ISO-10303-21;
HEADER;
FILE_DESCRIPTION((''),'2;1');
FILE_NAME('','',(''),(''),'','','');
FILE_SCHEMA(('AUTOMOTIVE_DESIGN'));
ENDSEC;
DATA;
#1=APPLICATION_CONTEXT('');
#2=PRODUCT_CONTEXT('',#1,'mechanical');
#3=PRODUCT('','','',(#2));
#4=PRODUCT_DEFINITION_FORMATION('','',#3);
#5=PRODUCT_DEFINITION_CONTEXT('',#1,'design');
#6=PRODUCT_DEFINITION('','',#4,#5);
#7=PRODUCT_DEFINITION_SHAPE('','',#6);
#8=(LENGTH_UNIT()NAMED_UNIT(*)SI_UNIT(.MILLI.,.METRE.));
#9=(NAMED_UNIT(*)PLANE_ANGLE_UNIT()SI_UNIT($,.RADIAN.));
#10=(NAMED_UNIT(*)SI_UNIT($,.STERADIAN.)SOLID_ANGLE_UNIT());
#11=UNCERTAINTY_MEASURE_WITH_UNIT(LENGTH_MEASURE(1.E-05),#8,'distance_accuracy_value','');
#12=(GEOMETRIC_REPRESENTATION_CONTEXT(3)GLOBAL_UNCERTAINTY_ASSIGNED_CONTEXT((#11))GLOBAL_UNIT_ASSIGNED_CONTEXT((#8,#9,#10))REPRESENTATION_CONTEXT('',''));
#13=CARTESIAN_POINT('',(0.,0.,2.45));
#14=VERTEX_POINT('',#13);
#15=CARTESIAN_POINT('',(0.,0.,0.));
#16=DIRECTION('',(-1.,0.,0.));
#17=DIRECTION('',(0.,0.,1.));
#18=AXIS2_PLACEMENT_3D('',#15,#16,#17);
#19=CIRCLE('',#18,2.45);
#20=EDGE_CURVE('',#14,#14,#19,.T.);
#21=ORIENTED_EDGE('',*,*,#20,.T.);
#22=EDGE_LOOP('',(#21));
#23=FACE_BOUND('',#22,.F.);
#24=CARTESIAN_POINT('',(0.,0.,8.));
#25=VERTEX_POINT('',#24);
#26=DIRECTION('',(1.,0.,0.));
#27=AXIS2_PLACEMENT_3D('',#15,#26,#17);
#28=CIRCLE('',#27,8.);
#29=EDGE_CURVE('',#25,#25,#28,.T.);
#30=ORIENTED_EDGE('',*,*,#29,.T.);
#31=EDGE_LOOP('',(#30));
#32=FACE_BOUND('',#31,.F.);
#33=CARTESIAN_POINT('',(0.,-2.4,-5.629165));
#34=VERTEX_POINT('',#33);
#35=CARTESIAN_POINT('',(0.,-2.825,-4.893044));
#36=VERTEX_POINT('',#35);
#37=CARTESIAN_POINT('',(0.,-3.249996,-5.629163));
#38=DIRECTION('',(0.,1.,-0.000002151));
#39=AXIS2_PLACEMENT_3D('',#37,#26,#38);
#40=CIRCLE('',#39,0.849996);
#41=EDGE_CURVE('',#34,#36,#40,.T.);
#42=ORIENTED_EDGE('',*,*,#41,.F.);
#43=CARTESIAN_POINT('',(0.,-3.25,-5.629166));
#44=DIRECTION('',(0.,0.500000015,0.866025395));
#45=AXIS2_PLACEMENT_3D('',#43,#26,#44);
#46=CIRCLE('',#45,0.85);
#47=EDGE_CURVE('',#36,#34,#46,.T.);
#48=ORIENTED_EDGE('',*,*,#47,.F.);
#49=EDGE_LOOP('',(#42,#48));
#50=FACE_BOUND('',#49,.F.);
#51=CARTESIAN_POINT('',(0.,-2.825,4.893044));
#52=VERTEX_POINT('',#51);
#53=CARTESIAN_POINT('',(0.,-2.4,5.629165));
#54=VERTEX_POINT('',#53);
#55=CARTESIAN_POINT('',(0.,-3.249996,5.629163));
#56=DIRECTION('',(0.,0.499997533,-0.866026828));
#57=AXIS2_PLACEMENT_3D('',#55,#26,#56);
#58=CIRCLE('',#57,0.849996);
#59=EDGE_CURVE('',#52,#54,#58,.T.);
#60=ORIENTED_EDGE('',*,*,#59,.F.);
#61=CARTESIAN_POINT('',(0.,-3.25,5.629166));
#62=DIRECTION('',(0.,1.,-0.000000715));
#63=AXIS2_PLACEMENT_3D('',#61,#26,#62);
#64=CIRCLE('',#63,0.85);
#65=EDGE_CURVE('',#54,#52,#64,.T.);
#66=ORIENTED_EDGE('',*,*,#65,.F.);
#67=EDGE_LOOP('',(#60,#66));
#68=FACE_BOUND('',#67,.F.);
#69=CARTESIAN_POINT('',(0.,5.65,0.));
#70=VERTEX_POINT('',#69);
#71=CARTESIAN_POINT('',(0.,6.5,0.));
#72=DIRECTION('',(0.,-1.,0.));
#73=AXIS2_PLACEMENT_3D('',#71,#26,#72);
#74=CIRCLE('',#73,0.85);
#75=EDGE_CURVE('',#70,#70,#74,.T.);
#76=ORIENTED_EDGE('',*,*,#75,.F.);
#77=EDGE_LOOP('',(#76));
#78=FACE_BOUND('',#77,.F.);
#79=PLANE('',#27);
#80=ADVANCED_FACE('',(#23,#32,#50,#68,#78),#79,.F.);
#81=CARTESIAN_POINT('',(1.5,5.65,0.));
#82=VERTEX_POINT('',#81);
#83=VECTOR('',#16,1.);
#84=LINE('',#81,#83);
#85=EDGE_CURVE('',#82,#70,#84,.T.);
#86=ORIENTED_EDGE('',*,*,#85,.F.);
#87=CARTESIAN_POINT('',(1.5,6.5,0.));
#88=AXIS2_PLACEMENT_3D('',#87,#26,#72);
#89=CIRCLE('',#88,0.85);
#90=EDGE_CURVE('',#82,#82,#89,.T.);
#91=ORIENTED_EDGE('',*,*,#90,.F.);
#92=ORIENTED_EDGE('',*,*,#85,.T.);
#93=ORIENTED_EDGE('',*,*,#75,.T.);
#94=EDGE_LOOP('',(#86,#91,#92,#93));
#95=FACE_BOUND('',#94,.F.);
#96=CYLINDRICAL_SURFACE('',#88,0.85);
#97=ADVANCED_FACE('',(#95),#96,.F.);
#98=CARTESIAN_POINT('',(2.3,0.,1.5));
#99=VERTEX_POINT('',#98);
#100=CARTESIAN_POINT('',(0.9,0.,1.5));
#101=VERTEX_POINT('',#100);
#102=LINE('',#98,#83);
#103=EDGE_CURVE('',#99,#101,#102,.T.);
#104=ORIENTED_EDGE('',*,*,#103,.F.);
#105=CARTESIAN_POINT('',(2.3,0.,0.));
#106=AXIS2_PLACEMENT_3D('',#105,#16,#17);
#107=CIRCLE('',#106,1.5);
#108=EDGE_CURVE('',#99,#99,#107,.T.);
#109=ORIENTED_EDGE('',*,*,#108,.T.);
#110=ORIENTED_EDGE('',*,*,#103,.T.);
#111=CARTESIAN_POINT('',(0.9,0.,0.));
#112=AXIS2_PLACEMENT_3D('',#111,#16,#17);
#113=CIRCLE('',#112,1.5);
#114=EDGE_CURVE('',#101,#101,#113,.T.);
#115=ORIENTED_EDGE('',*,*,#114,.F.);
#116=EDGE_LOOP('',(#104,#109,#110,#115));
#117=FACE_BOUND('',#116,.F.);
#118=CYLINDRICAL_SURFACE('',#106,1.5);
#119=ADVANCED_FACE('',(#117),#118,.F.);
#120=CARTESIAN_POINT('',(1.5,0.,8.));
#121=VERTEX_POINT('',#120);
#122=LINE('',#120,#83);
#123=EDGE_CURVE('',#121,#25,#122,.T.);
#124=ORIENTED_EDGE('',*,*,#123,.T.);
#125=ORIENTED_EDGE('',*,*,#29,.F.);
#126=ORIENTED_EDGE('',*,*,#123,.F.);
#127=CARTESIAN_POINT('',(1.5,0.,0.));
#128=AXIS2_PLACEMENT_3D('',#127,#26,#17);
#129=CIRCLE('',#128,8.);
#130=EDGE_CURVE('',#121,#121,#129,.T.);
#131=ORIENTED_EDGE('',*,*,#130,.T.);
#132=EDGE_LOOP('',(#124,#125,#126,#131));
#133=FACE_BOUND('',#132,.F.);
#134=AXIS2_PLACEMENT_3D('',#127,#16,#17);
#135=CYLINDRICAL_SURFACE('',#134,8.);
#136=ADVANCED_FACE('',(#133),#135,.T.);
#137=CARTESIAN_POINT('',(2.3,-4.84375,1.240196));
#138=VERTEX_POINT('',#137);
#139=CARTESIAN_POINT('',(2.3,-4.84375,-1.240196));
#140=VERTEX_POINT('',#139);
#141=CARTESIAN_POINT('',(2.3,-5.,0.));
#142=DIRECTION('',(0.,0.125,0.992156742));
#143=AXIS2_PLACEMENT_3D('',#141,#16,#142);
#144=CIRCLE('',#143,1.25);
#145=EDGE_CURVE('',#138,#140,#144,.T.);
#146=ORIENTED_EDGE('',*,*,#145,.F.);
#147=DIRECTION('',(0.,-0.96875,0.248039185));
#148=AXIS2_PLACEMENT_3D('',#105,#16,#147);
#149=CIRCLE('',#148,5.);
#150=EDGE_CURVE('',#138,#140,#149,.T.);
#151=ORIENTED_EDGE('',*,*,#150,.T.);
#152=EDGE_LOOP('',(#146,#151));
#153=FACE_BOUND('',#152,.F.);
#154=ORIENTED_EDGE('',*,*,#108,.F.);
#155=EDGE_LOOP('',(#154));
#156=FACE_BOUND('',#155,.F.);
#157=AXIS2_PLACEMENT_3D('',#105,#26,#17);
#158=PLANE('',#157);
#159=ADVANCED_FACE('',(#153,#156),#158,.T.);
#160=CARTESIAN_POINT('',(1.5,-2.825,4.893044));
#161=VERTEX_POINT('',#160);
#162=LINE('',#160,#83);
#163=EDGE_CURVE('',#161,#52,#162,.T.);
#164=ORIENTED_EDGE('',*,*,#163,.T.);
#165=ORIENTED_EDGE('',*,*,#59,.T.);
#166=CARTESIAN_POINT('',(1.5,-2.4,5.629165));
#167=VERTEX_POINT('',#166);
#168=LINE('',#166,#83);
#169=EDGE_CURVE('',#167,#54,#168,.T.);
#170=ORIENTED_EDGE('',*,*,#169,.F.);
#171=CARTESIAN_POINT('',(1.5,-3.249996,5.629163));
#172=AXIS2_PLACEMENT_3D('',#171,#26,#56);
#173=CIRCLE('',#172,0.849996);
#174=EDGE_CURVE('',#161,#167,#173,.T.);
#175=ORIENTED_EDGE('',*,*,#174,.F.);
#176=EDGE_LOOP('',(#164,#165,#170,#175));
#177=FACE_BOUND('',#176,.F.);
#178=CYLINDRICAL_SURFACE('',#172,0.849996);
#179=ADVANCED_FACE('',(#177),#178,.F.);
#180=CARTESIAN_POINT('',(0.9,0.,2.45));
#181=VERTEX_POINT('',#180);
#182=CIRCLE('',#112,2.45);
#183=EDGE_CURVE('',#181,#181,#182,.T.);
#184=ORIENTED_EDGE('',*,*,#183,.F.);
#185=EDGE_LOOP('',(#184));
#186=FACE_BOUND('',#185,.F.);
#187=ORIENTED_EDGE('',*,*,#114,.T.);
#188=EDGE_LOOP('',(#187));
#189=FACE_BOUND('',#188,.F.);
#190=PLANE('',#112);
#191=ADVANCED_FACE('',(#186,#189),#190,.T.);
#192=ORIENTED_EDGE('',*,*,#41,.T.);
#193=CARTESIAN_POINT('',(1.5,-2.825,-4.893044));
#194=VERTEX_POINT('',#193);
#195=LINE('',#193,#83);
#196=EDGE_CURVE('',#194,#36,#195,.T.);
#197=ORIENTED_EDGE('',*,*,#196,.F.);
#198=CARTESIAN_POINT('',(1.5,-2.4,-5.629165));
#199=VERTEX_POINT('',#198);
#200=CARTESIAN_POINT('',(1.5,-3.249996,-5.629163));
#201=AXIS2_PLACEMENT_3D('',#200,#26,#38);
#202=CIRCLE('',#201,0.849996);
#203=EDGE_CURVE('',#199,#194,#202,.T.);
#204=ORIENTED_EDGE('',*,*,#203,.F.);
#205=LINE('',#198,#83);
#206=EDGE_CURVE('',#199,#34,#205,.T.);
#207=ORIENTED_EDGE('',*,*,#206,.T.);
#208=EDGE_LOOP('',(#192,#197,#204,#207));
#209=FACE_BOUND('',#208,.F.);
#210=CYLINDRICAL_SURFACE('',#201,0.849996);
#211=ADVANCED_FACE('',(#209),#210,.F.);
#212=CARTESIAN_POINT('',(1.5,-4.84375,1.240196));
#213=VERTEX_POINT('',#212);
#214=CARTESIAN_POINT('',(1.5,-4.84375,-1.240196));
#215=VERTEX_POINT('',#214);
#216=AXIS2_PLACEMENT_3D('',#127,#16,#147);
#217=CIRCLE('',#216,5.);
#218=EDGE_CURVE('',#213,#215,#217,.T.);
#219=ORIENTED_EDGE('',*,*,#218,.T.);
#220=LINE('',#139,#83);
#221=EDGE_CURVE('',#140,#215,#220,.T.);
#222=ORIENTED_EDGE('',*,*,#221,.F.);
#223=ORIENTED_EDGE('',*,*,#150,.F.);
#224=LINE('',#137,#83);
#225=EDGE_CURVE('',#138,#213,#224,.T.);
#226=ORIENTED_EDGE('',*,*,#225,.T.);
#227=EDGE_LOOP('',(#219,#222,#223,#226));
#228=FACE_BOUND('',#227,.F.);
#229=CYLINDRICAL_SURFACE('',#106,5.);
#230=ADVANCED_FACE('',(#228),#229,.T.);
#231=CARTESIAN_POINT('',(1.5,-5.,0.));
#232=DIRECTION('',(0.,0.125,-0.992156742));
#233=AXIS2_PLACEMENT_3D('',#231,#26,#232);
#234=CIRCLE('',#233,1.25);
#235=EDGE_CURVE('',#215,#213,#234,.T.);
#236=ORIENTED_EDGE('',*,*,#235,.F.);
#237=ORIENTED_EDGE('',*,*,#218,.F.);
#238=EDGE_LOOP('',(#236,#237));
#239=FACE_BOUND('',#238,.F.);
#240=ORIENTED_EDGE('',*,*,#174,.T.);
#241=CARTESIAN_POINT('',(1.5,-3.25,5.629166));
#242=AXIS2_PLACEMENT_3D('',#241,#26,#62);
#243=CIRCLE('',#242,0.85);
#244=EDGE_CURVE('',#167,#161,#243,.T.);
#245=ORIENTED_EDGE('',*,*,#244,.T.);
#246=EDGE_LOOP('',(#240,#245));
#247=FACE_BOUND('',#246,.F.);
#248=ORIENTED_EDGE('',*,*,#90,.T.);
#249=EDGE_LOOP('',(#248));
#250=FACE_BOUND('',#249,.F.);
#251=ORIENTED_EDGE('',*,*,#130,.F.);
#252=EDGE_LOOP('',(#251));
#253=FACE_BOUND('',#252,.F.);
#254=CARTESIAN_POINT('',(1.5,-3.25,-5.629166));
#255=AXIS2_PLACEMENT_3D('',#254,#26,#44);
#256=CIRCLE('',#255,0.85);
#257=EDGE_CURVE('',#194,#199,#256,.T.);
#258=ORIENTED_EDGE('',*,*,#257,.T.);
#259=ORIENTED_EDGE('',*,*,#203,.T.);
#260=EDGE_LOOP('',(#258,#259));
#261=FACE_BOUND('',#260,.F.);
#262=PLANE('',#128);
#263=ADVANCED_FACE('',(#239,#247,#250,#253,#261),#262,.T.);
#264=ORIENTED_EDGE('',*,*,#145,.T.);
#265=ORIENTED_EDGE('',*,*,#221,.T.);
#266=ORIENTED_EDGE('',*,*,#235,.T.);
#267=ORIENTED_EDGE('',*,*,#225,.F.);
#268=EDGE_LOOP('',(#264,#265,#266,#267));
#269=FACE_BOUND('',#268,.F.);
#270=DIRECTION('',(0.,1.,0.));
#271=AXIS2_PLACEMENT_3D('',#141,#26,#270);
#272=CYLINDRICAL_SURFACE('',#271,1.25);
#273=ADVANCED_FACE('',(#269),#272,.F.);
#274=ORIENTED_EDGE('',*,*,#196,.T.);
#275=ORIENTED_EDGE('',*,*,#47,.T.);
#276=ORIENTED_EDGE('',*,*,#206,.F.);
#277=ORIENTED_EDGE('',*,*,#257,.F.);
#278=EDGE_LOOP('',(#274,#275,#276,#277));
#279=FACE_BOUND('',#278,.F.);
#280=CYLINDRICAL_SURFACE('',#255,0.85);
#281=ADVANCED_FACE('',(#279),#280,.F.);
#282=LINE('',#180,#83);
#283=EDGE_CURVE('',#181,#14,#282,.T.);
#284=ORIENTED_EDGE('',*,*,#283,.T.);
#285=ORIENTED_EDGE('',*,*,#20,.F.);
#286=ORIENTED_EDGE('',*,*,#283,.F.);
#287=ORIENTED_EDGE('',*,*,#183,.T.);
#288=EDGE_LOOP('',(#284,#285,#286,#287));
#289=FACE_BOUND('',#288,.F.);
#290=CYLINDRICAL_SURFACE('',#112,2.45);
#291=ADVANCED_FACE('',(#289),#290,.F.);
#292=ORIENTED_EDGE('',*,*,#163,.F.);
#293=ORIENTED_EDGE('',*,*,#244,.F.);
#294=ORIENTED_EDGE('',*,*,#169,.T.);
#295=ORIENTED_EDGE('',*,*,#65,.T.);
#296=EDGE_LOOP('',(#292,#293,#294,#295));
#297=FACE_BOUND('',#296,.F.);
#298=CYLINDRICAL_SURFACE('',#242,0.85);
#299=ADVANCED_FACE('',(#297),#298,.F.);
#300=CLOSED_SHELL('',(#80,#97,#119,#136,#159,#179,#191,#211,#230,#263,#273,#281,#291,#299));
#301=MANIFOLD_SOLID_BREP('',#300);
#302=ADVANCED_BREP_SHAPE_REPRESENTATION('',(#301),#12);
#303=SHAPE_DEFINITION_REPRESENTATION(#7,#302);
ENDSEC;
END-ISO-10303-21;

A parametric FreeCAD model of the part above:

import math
import FreeCAD as App
import Part
import Sketcher

V = App.Vector

doc = App.newDocument("Part")
params = doc.addObject("Spreadsheet::Sheet", "Params")
for row, (alias, value) in enumerate([
    ("sketch1_height", "8 mm"),
    ("sketch1_height2", "5 mm"),
    ("sketch1_width", "2.3 mm"),
    ("sketch1_width2", "0.8 mm"),
    ("revolution_angle", "360 deg"),
    ("sketch2_width", "2.3 mm"),
    ("sketch2_width2", "1.4 mm"),
    ("sketch2_height", "1.5 mm"),
    ("sketch2_height2", "2.45 mm"),
    ("groove_angle", "360 deg"),
    ("sketch3_diameter", "1.7 mm"),
    ("sketch4_diameter", "2.5 mm"),
    ("pocket2_length", "0.8 mm"),
], start=1):
    params.set(f"A{row}", alias)
    params.set(f"B{row}", "=" + value)
    params.setAlias(f"B{row}", alias)

body = doc.addObject("PartDesign::Body", "Body")

# Sketch on XZ plane
sketch1 = body.newObject("Sketcher::SketchObject", "Sketch")
sketch1.AttachmentSupport = (doc.getObject("XZ_Plane"), [""])
sketch1.MapMode = "FlatFace"
sketch1.addGeometry(Part.LineSegment(V(0, 8, 0), V(0, 0, 0)), False)
sketch1.addGeometry(Part.LineSegment(V(0, 0, 0), V(2.3, 0, 0)), False)
sketch1.addGeometry(Part.LineSegment(V(2.3, 0, 0), V(2.3, 5, 0)), False)
sketch1.addGeometry(Part.LineSegment(V(2.3, 5, 0), V(1.5, 5, 0)), False)
sketch1.addGeometry(Part.LineSegment(V(1.5, 5, 0), V(1.5, 8, 0)), False)
sketch1.addGeometry(Part.LineSegment(V(1.5, 8, 0), V(0, 8, 0)), False)
sketch1.addConstraint(Sketcher.Constraint("Coincident", 0, 2, 1, 1))
sketch1.addConstraint(Sketcher.Constraint("Coincident", 1, 2, 2, 1))
sketch1.addConstraint(Sketcher.Constraint("Coincident", 2, 2, 3, 1))
sketch1.addConstraint(Sketcher.Constraint("Coincident", 3, 2, 4, 1))
sketch1.addConstraint(Sketcher.Constraint("Coincident", 4, 2, 5, 1))
sketch1.addConstraint(Sketcher.Constraint("Coincident", 5, 2, 0, 1))
sketch1.addConstraint(Sketcher.Constraint("Vertical", 0))
sketch1.addConstraint(Sketcher.Constraint("Horizontal", 1))
sketch1.addConstraint(Sketcher.Constraint("Vertical", 2))
sketch1.addConstraint(Sketcher.Constraint("Horizontal", 3))
sketch1.addConstraint(Sketcher.Constraint("Vertical", 4))
sketch1.addConstraint(Sketcher.Constraint("Horizontal", 5))
sketch1.addConstraint(Sketcher.Constraint("Coincident", 0, 2, -1, 1))
sketch1.addConstraint(Sketcher.Constraint("DistanceY", 0, 2, 0, 1, 8.0))
sketch1.addConstraint(Sketcher.Constraint("DistanceY", 2, 1, 2, 2, 5.0))
sketch1.addConstraint(Sketcher.Constraint("DistanceX", 1, 1, 1, 2, 2.3))
sketch1.addConstraint(Sketcher.Constraint("DistanceX", 3, 2, 3, 1, 0.8))
sketch1.setExpression("Constraints[13]", "Params.sketch1_height")
sketch1.setExpression("Constraints[14]", "Params.sketch1_height2")
sketch1.setExpression("Constraints[15]", "Params.sketch1_width")
sketch1.setExpression("Constraints[16]", "Params.sketch1_width2")
revolution = body.newObject("PartDesign::Revolution", "Revolution")
revolution.Profile = sketch1
revolution.ReferenceAxis = (sketch1, ["H_Axis"])
revolution.setExpression("Angle", "Params.revolution_angle")

# Sketch on XZ plane
sketch2 = body.newObject("Sketcher::SketchObject", "Sketch001")
sketch2.AttachmentSupport = (doc.getObject("XZ_Plane"), [""])
sketch2.MapMode = "FlatFace"
sketch2.addGeometry(Part.LineSegment(V(0, 2.5, 0), V(0, 0, 0)), False)
sketch2.addGeometry(Part.LineSegment(V(0, 0, 0), V(2.3, 0, 0)), False)
sketch2.addGeometry(Part.LineSegment(V(2.3, 0, 0), V(2.3, 1.5, 0)), False)
sketch2.addGeometry(Part.LineSegment(V(2.3, 1.5, 0), V(0.9, 1.5, 0)), False)
sketch2.addGeometry(Part.LineSegment(V(0.9, 1.5, 0), V(0.9, 2.5, 0)), False)
sketch2.addGeometry(Part.LineSegment(V(0.9, 2.5, 0), V(0, 2.5, 0)), False)
sketch2.addConstraint(Sketcher.Constraint("Coincident", 0, 2, 1, 1))
sketch2.addConstraint(Sketcher.Constraint("Coincident", 1, 2, 2, 1))
sketch2.addConstraint(Sketcher.Constraint("Coincident", 2, 2, 3, 1))
sketch2.addConstraint(Sketcher.Constraint("Coincident", 3, 2, 4, 1))
sketch2.addConstraint(Sketcher.Constraint("Coincident", 4, 2, 5, 1))
sketch2.addConstraint(Sketcher.Constraint("Coincident", 5, 2, 0, 1))
sketch2.addConstraint(Sketcher.Constraint("Vertical", 0))
sketch2.addConstraint(Sketcher.Constraint("Horizontal", 1))
sketch2.addConstraint(Sketcher.Constraint("Vertical", 2))
sketch2.addConstraint(Sketcher.Constraint("Horizontal", 3))
sketch2.addConstraint(Sketcher.Constraint("Vertical", 4))
sketch2.addConstraint(Sketcher.Constraint("Horizontal", 5))
sketch2.addConstraint(Sketcher.Constraint("Coincident", 0, 2, -1, 1))
sketch2.addConstraint(Sketcher.Constraint("DistanceX", 1, 1, 1, 2, 2.3))
sketch2.addConstraint(Sketcher.Constraint("DistanceX", 3, 2, 3, 1, 1.4))
sketch2.addConstraint(Sketcher.Constraint("DistanceY", 2, 1, 2, 2, 1.5))
sketch2.addConstraint(Sketcher.Constraint("DistanceY", 0, 2, 0, 1, 2.45))
sketch2.setExpression("Constraints[13]", "Params.sketch2_width")
sketch2.setExpression("Constraints[14]", "Params.sketch2_width2")
sketch2.setExpression("Constraints[15]", "Params.sketch2_height")
sketch2.setExpression("Constraints[16]", "Params.sketch2_height2")
groove = body.newObject("PartDesign::Groove", "Groove")
groove.Profile = sketch2
groove.ReferenceAxis = (sketch2, ["H_Axis"])
groove.setExpression("Angle", "Params.groove_angle")

# Sketch on YZ plane
sketch3 = body.newObject("Sketcher::SketchObject", "Sketch002")
sketch3.AttachmentSupport = (doc.getObject("YZ_Plane"), [""])
sketch3.MapMode = "FlatFace"
sketch3.AttachmentOffset = App.Placement(V(0, 0, 1.5), App.Rotation())
sketch3.addGeometry(Part.Circle(V(6.5, 0, 0), V(0, 0, 1), 0.8), False)
sketch3.addGeometry(Part.ArcOfCircle(Part.Circle(V(-3.2, -5.6, 0), V(0, 0, 1), 0.8), math.radians(0), math.radians(60)), False)
sketch3.addGeometry(Part.ArcOfCircle(Part.Circle(V(-3.3, -5.6, 0), V(0, 0, 1), 0.9), math.radians(60), math.radians(360)), False)
sketch3.addGeometry(Part.ArcOfCircle(Part.Circle(V(-3.3, 5.6, 0), V(0, 0, 1), 0.9), math.radians(0), math.radians(300)), False)
sketch3.addGeometry(Part.ArcOfCircle(Part.Circle(V(-3.2, 5.6, 0), V(0, 0, 1), 0.8), math.radians(-60), math.radians(0)), False)
sketch3.addConstraint(Sketcher.Constraint("Coincident", 1, 1, 2, 2))
sketch3.addConstraint(Sketcher.Constraint("Coincident", 2, 1, 1, 2))
sketch3.addConstraint(Sketcher.Constraint("Coincident", 3, 1, 4, 2))
sketch3.addConstraint(Sketcher.Constraint("Coincident", 4, 1, 3, 2))
sketch3.addConstraint(Sketcher.Constraint("Equal", 0, 2))
sketch3.addConstraint(Sketcher.Constraint("Equal", 2, 3))
sketch3.addConstraint(Sketcher.Constraint("Equal", 1, 4))
sketch3.addConstraint(Sketcher.Constraint("Symmetric", 1, 3, 3, 3, -1))
sketch3.addConstraint(Sketcher.Constraint("Symmetric", 1, 1, 3, 1, -1))
sketch3.addConstraint(Sketcher.Constraint("PointOnObject", 0, 3, -1))
sketch3.addConstraint(Sketcher.Constraint("Horizontal", 2, 3, 1, 1))
sketch3.addConstraint(Sketcher.Constraint("Vertical", 2, 1, 4, 1))
sketch3.addConstraint(Sketcher.Constraint("Diameter", 0, 1.7))
sketch3.addConstraint(Sketcher.Constraint("DistanceX", -1, 1, 0, 3, 6.5))
sketch3.addConstraint(Sketcher.Constraint("DistanceX", 1, 1, -1, 1, 2.4))
sketch3.addConstraint(Sketcher.Constraint("DistanceX", 2, 1, -1, 1, 2.825))
sketch3.addConstraint(Sketcher.Constraint("DistanceY", 1, 3, 3, 3, 11.258329))
sketch3.setExpression("Constraints[12]", "Params.sketch3_diameter")
pocket1 = body.newObject("PartDesign::Pocket", "Pocket")
pocket1.Profile = sketch3
pocket1.Type = "ThroughAll"

# Sketch on YZ plane
sketch4 = body.newObject("Sketcher::SketchObject", "Sketch003")
sketch4.AttachmentSupport = (doc.getObject("YZ_Plane"), [""])
sketch4.MapMode = "FlatFace"
sketch4.AttachmentOffset = App.Placement(V(0, 0, 2.3), App.Rotation())
sketch4.addGeometry(Part.Circle(V(-5, 0, 0), V(0, 0, 1), 1.2), False)
sketch4.addConstraint(Sketcher.Constraint("PointOnObject", 0, 3, -1))
sketch4.addConstraint(Sketcher.Constraint("Diameter", 0, 2.5))
sketch4.addConstraint(Sketcher.Constraint("DistanceX", 0, 3, -1, 1, 5.0))
sketch4.setExpression("Constraints[1]", "Params.sketch4_diameter")
pocket2 = body.newObject("PartDesign::Pocket", "Pocket001")
pocket2.Profile = sketch4
pocket2.setExpression("Length", "Params.pocket2_length")

doc.recompute()
